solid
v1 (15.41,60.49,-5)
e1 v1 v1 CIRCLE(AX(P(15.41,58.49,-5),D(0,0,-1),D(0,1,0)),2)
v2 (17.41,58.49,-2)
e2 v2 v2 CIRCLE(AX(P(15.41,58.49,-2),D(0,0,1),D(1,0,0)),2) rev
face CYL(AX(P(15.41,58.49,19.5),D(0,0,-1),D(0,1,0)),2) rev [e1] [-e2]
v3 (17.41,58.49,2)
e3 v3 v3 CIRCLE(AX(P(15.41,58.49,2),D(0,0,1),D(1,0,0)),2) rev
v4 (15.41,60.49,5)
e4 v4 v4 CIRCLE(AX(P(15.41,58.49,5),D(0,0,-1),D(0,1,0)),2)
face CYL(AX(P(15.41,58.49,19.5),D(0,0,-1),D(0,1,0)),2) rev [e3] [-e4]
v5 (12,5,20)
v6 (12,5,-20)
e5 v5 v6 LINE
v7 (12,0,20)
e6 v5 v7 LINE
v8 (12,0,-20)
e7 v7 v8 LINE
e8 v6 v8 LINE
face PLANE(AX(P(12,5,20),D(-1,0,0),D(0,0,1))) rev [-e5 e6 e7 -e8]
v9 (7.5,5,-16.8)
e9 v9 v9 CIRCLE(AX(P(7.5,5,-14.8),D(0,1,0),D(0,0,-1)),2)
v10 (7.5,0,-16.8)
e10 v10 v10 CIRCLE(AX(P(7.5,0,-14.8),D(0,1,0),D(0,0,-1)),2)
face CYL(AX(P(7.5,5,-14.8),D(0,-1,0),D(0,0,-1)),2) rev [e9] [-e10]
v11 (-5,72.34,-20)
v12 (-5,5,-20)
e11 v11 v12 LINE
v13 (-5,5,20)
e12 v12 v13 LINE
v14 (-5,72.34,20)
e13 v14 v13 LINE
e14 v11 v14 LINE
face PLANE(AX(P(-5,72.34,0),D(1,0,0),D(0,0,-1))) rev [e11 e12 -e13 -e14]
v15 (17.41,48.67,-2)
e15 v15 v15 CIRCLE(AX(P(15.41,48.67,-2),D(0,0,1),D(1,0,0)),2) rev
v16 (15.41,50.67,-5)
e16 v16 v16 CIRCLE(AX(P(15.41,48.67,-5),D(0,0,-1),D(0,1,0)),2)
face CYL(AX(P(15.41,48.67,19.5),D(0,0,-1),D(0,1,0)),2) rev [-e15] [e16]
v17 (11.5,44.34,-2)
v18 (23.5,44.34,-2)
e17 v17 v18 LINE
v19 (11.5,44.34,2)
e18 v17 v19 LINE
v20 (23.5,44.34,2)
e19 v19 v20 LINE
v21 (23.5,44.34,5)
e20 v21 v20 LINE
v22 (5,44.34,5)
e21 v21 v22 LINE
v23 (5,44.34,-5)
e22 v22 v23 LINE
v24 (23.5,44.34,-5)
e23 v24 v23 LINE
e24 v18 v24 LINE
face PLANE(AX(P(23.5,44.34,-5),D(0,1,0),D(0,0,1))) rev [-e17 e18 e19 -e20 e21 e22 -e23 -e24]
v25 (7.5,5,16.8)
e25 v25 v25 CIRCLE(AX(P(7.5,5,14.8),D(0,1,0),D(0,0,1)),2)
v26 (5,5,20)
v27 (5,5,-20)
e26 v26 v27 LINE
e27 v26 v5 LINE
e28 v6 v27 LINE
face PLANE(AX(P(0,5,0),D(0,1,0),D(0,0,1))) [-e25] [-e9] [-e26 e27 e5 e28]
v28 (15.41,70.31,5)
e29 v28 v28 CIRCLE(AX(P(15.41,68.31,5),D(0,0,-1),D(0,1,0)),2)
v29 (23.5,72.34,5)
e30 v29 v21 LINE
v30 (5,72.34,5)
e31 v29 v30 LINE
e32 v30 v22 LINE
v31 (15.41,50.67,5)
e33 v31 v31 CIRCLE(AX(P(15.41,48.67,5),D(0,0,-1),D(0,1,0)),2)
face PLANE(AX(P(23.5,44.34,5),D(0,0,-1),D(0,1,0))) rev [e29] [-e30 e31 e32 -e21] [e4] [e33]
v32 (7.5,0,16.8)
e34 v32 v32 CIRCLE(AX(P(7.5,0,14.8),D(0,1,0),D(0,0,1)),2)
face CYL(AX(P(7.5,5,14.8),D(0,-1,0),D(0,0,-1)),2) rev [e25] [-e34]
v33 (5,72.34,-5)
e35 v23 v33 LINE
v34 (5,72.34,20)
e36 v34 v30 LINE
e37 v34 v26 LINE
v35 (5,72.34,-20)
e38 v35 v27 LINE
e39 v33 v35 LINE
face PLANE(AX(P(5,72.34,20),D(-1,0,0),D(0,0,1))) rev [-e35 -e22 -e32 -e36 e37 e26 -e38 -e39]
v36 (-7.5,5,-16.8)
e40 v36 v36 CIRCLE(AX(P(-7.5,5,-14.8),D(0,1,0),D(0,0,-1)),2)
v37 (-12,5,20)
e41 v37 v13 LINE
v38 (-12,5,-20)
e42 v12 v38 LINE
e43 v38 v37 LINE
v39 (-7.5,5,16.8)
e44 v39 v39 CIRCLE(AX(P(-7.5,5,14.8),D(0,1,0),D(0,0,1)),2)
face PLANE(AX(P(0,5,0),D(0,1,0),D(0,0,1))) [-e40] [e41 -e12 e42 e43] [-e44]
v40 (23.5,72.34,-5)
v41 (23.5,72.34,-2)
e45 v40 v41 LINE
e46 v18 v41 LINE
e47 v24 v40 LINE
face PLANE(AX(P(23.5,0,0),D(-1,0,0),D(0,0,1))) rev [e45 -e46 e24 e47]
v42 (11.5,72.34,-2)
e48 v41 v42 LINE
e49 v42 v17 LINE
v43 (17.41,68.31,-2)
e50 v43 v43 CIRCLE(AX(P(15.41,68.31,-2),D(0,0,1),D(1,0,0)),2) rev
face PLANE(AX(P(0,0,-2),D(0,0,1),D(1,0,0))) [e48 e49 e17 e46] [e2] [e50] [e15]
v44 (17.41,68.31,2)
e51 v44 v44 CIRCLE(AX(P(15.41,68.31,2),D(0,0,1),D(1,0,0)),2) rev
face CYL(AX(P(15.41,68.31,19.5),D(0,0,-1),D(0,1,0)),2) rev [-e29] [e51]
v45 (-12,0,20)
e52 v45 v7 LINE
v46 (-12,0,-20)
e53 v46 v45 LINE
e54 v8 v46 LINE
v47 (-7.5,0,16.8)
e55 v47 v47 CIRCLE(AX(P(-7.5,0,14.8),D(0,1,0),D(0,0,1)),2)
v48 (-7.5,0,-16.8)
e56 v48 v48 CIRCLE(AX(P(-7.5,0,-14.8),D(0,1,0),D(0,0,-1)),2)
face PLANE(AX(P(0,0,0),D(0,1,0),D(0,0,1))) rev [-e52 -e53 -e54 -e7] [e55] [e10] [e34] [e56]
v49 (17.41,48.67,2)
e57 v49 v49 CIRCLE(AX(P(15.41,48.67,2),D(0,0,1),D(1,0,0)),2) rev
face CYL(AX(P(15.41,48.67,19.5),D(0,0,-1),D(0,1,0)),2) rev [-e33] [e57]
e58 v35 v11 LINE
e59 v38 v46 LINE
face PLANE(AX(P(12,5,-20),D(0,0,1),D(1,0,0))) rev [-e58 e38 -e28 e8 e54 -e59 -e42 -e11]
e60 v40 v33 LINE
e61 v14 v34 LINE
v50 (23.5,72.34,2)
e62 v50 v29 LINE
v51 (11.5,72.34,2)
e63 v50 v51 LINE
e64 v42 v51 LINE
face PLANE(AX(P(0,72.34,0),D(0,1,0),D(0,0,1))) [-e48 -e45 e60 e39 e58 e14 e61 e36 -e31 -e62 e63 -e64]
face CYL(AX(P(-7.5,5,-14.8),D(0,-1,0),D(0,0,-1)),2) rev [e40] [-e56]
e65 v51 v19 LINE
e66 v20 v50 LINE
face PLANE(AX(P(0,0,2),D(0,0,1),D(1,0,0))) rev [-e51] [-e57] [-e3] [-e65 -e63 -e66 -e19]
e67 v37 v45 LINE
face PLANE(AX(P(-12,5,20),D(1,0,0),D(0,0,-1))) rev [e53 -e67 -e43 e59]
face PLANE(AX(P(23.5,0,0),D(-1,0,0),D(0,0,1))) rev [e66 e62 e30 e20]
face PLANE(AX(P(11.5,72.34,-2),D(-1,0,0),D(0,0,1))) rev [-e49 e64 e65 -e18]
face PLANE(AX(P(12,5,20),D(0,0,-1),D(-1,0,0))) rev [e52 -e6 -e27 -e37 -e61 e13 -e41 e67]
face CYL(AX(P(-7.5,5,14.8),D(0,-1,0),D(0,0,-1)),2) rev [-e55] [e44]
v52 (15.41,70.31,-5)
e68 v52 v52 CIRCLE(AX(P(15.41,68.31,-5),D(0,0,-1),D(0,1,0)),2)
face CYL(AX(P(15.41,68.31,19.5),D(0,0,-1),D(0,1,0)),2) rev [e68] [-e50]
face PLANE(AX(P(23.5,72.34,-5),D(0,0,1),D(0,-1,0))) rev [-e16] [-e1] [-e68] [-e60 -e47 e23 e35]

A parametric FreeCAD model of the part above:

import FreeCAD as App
import Part
import Sketcher

V = App.Vector
Q = App.Units.Quantity


def add_polygon(sketch, points):
    """Adds a closed chain of lines whose ends are joined by coincident constraints."""
    first, n = sketch.GeometryCount, len(points)
    for a, b in zip(points, points[1:] + points[:1]):
        sketch.addGeometry(Part.LineSegment(App.Vector(*a, 0), App.Vector(*b, 0)), False)
    for i in range(n):
        sketch.addConstraint(Sketcher.Constraint("Coincident", first + i, 2, first + (i + 1) % n, 1))

doc = App.newDocument("Part")
params = doc.addObject("Spreadsheet::Sheet", "Params")
for row, (alias, value) in enumerate([
    ("sketch1_diameter", "4 mm"),
    ("sketch1_width", "24 mm"),
    ("sketch1_height", "40 mm"),
    ("pad1_length", "5 mm"),
    ("sketch2_width", "10 mm"),
    ("sketch2_height", "40 mm"),
    ("pad2_length", "67.34 mm"),
    ("sketch3_width", "28 mm"),
    ("sketch3_height", "10 mm"),
    ("pad3_length", "18.5 mm"),
    ("sketch4_diameter", "4 mm"),
    ("pocket1_length", "24.5 mm"),
    ("sketch5_width", "12 mm"),
    ("sketch5_height", "28 mm"),
    ("pocket2_length", "4 mm"),
], start=1):
    params.set(f"A{row}", alias)
    params.set(f"B{row}", "=" + value)
    params.setAlias(f"B{row}", alias)

body = doc.addObject("PartDesign::Body", "Body")

# Sketch on XZ plane
sketch1 = body.newObject("Sketcher::SketchObject", "Sketch")
sketch1.AttachmentSupport = (doc.getObject("XZ_Plane"), [""])
sketch1.MapMode = "FlatFace"
add_polygon(sketch1, [(-12, -20), (-12, 20), (12, 20), (12, -20)])  # lines 0-3
sketch1.addGeometry(Part.Circle(V(-7.5, 14.8, 0), V(0, 0, 1), 2), False)  # 4
sketch1.addGeometry(Part.Circle(V(7.5, 14.8, 0), V(0, 0, 1), 2), False)  # 5
sketch1.addGeometry(Part.Circle(V(-7.5, -14.8, 0), V(0, 0, 1), 2), False)  # 6
sketch1.addGeometry(Part.Circle(V(7.5, -14.8, 0), V(0, 0, 1), 2), False)  # 7
sketch1.addConstraint(Sketcher.Constraint("Vertical", 0))
sketch1.addConstraint(Sketcher.Constraint("Horizontal", 1))
sketch1.addConstraint(Sketcher.Constraint("Vertical", 2))
sketch1.addConstraint(Sketcher.Constraint("Horizontal", 3))
sketch1.addConstraint(Sketcher.Constraint("Equal", 4, 5))
sketch1.addConstraint(Sketcher.Constraint("Equal", 5, 6))
sketch1.addConstraint(Sketcher.Constraint("Equal", 6, 7))
sketch1.addConstraint(Sketcher.Constraint("Symmetric", 5, 3, 6, 3, -1, 1))
sketch1.addConstraint(Sketcher.Constraint("Symmetric", 4, 3, 7, 3, -1, 1))
sketch1.addConstraint(Sketcher.Constraint("Symmetric", 0, 2, 2, 2, -1, 1))
sketch1.addConstraint(Sketcher.Constraint("Symmetric", 4, 3, 5, 3, -2))
sketch1.addConstraint(Sketcher.Constraint("Diameter", 4, Q("4 mm")))
sketch1.addConstraint(Sketcher.Constraint("DistanceX", 1, 1, 1, 2, Q("24 mm")))
sketch1.addConstraint(Sketcher.Constraint("DistanceY", 0, 1, 0, 2, Q("40 mm")))
sketch1.addConstraint(Sketcher.Constraint("DistanceX", 4, 3, 5, 3, Q("15 mm")))
sketch1.addConstraint(Sketcher.Constraint("DistanceY", -1, 1, 4, 3, Q("14.8 mm")))
sketch1.setExpression("Constraints[15]", "Params.sketch1_diameter")
sketch1.setExpression("Constraints[16]", "Params.sketch1_width")
sketch1.setExpression("Constraints[17]", "Params.sketch1_height")
pad1 = body.newObject("PartDesign::Pad", "Pad")
pad1.Profile = sketch1
pad1.setExpression("Length", "Params.pad1_length")
pad1.Reversed = True

# Sketch on XZ plane
sketch2 = body.newObject("Sketcher::SketchObject", "Sketch001")
sketch2.AttachmentSupport = (doc.getObject("XZ_Plane"), [""])
sketch2.MapMode = "FlatFace"
sketch2.AttachmentOffset = App.Placement(V(0, 0, -5), App.Rotation())
add_polygon(sketch2, [(-5, 20), (5, 20), (5, -20), (-5, -20)])  # lines 0-3
sketch2.addConstraint(Sketcher.Constraint("Horizontal", 0))
sketch2.addConstraint(Sketcher.Constraint("Vertical", 1))
sketch2.addConstraint(Sketcher.Constraint("Horizontal", 2))
sketch2.addConstraint(Sketcher.Constraint("Vertical", 3))
sketch2.addConstraint(Sketcher.Constraint("Symmetric", 0, 2, 2, 2, -1, 1))
sketch2.addConstraint(Sketcher.Constraint("DistanceX", 0, 1, 0, 2, Q("10 mm")))
sketch2.addConstraint(Sketcher.Constraint("DistanceY", 1, 2, 1, 1, Q("40 mm")))
sketch2.setExpression("Constraints[9]", "Params.sketch2_width")
sketch2.setExpression("Constraints[10]", "Params.sketch2_height")
pad2 = body.newObject("PartDesign::Pad", "Pad001")
pad2.Profile = sketch2
pad2.setExpression("Length", "Params.pad2_length")
pad2.Reversed = True

# Sketch on YZ plane
sketch3 = body.newObject("Sketcher::SketchObject", "Sketch002")
sketch3.AttachmentSupport = (doc.getObject("YZ_Plane"), [""])
sketch3.MapMode = "FlatFace"
sketch3.AttachmentOffset = App.Placement(V(0, 0, 5), App.Rotation())
add_polygon(sketch3, [(72, 5), (44, 5), (44, -5), (72, -5)])  # lines 0-3
sketch3.addConstraint(Sketcher.Constraint("Horizontal", 0))
sketch3.addConstraint(Sketcher.Constraint("Vertical", 1))
sketch3.addConstraint(Sketcher.Constraint("Horizontal", 2))
sketch3.addConstraint(Sketcher.Constraint("Vertical", 3))
sketch3.addConstraint(Sketcher.Constraint("DistanceX", 0, 2, 0, 1, Q("28 mm")))
sketch3.addConstraint(Sketcher.Constraint("DistanceY", 1, 2, 1, 1, Q("10 mm")))
sketch3.addConstraint(Sketcher.Constraint("DistanceY", -1, 1, 0, 2, Q("5 mm")))
sketch3.addConstraint(Sketcher.Constraint("DistanceX", -1, 1, 0, 2, Q("44.34 mm")))
sketch3.setExpression("Constraints[8]", "Params.sketch3_width")
sketch3.setExpression("Constraints[9]", "Params.sketch3_height")
pad3 = body.newObject("PartDesign::Pad", "Pad002")
pad3.Profile = sketch3
pad3.setExpression("Length", "Params.pad3_length")

# Sketch on XY plane
sketch4 = body.newObject("Sketcher::SketchObject", "Sketch003")
sketch4.AttachmentSupport = (doc.getObject("XY_Plane"), [""])
sketch4.MapMode = "FlatFace"
sketch4.AttachmentOffset = App.Placement(V(0, 0, -5), App.Rotation())
sketch4.addGeometry(Part.Circle(V(15.4, 68.3, 0), V(0, 0, 1), 2), False)
sketch4.addGeometry(Part.Circle(V(15.4, 58.5, 0), V(0, 0, 1), 2), False)
sketch4.addGeometry(Part.Circle(V(15.4, 48.7, 0), V(0, 0, 1), 2), False)
sketch4.addConstraint(Sketcher.Constraint("Equal", 0, 1))
sketch4.addConstraint(Sketcher.Constraint("Equal", 1, 2))
sketch4.addConstraint(Sketcher.Constraint("Vertical", 0, 3, 1, 3))
sketch4.addConstraint(Sketcher.Constraint("Vertical", 1, 3, 2, 3))
sketch4.addConstraint(Sketcher.Constraint("Diameter", 0, Q("4 mm")))
sketch4.addConstraint(Sketcher.Constraint("DistanceX", -1, 1, 0, 3, Q("15.41 mm")))
sketch4.addConstraint(Sketcher.Constraint("DistanceY", -1, 1, 0, 3, Q("68.31 mm")))
sketch4.addConstraint(Sketcher.Constraint("DistanceY", -1, 1, 1, 3, Q("58.49 mm")))
sketch4.addConstraint(Sketcher.Constraint("DistanceY", -1, 1, 2, 3, Q("48.67 mm")))
sketch4.setExpression("Constraints[4]", "Params.sketch4_diameter")
pocket1 = body.newObject("PartDesign::Pocket", "Pocket")
pocket1.Profile = sketch4
pocket1.setExpression("Length", "Params.pocket1_length")
pocket1.Reversed = True

# Sketch on XY plane
sketch5 = body.newObject("Sketcher::SketchObject", "Sketch004")
sketch5.AttachmentSupport = (doc.getObject("XY_Plane"), [""])
sketch5.MapMode = "FlatFace"
add_polygon(sketch5, [(12, 72), (12, 44), (24, 44), (24, 72)])  # lines 0-3
sketch5.addConstraint(Sketcher.Constraint("Vertical", 0))
sketch5.addConstraint(Sketcher.Constraint("Horizontal", 1))
sketch5.addConstraint(Sketcher.Constraint("Vertical", 2))
sketch5.addConstraint(Sketcher.Constraint("Horizontal", 3))
sketch5.addConstraint(Sketcher.Constraint("DistanceX", 1, 1, 1, 2, Q("12 mm")))
sketch5.addConstraint(Sketcher.Constraint("DistanceY", 0, 2, 0, 1, Q("28 mm")))
sketch5.addConstraint(Sketcher.Constraint("DistanceX", -1, 1, 0, 2, Q("11.5 mm")))
sketch5.addConstraint(Sketcher.Constraint("DistanceY", -1, 1, 0, 2, Q("44.34 mm")))
sketch5.setExpression("Constraints[8]", "Params.sketch5_width")
sketch5.setExpression("Constraints[9]", "Params.sketch5_height")
pocket2 = body.newObject("PartDesign::Pocket", "Pocket001")
pocket2.Profile = sketch5
pocket2.setExpression("Length", "Params.pocket2_length")
pocket2.Midplane = True

doc.recompute()
